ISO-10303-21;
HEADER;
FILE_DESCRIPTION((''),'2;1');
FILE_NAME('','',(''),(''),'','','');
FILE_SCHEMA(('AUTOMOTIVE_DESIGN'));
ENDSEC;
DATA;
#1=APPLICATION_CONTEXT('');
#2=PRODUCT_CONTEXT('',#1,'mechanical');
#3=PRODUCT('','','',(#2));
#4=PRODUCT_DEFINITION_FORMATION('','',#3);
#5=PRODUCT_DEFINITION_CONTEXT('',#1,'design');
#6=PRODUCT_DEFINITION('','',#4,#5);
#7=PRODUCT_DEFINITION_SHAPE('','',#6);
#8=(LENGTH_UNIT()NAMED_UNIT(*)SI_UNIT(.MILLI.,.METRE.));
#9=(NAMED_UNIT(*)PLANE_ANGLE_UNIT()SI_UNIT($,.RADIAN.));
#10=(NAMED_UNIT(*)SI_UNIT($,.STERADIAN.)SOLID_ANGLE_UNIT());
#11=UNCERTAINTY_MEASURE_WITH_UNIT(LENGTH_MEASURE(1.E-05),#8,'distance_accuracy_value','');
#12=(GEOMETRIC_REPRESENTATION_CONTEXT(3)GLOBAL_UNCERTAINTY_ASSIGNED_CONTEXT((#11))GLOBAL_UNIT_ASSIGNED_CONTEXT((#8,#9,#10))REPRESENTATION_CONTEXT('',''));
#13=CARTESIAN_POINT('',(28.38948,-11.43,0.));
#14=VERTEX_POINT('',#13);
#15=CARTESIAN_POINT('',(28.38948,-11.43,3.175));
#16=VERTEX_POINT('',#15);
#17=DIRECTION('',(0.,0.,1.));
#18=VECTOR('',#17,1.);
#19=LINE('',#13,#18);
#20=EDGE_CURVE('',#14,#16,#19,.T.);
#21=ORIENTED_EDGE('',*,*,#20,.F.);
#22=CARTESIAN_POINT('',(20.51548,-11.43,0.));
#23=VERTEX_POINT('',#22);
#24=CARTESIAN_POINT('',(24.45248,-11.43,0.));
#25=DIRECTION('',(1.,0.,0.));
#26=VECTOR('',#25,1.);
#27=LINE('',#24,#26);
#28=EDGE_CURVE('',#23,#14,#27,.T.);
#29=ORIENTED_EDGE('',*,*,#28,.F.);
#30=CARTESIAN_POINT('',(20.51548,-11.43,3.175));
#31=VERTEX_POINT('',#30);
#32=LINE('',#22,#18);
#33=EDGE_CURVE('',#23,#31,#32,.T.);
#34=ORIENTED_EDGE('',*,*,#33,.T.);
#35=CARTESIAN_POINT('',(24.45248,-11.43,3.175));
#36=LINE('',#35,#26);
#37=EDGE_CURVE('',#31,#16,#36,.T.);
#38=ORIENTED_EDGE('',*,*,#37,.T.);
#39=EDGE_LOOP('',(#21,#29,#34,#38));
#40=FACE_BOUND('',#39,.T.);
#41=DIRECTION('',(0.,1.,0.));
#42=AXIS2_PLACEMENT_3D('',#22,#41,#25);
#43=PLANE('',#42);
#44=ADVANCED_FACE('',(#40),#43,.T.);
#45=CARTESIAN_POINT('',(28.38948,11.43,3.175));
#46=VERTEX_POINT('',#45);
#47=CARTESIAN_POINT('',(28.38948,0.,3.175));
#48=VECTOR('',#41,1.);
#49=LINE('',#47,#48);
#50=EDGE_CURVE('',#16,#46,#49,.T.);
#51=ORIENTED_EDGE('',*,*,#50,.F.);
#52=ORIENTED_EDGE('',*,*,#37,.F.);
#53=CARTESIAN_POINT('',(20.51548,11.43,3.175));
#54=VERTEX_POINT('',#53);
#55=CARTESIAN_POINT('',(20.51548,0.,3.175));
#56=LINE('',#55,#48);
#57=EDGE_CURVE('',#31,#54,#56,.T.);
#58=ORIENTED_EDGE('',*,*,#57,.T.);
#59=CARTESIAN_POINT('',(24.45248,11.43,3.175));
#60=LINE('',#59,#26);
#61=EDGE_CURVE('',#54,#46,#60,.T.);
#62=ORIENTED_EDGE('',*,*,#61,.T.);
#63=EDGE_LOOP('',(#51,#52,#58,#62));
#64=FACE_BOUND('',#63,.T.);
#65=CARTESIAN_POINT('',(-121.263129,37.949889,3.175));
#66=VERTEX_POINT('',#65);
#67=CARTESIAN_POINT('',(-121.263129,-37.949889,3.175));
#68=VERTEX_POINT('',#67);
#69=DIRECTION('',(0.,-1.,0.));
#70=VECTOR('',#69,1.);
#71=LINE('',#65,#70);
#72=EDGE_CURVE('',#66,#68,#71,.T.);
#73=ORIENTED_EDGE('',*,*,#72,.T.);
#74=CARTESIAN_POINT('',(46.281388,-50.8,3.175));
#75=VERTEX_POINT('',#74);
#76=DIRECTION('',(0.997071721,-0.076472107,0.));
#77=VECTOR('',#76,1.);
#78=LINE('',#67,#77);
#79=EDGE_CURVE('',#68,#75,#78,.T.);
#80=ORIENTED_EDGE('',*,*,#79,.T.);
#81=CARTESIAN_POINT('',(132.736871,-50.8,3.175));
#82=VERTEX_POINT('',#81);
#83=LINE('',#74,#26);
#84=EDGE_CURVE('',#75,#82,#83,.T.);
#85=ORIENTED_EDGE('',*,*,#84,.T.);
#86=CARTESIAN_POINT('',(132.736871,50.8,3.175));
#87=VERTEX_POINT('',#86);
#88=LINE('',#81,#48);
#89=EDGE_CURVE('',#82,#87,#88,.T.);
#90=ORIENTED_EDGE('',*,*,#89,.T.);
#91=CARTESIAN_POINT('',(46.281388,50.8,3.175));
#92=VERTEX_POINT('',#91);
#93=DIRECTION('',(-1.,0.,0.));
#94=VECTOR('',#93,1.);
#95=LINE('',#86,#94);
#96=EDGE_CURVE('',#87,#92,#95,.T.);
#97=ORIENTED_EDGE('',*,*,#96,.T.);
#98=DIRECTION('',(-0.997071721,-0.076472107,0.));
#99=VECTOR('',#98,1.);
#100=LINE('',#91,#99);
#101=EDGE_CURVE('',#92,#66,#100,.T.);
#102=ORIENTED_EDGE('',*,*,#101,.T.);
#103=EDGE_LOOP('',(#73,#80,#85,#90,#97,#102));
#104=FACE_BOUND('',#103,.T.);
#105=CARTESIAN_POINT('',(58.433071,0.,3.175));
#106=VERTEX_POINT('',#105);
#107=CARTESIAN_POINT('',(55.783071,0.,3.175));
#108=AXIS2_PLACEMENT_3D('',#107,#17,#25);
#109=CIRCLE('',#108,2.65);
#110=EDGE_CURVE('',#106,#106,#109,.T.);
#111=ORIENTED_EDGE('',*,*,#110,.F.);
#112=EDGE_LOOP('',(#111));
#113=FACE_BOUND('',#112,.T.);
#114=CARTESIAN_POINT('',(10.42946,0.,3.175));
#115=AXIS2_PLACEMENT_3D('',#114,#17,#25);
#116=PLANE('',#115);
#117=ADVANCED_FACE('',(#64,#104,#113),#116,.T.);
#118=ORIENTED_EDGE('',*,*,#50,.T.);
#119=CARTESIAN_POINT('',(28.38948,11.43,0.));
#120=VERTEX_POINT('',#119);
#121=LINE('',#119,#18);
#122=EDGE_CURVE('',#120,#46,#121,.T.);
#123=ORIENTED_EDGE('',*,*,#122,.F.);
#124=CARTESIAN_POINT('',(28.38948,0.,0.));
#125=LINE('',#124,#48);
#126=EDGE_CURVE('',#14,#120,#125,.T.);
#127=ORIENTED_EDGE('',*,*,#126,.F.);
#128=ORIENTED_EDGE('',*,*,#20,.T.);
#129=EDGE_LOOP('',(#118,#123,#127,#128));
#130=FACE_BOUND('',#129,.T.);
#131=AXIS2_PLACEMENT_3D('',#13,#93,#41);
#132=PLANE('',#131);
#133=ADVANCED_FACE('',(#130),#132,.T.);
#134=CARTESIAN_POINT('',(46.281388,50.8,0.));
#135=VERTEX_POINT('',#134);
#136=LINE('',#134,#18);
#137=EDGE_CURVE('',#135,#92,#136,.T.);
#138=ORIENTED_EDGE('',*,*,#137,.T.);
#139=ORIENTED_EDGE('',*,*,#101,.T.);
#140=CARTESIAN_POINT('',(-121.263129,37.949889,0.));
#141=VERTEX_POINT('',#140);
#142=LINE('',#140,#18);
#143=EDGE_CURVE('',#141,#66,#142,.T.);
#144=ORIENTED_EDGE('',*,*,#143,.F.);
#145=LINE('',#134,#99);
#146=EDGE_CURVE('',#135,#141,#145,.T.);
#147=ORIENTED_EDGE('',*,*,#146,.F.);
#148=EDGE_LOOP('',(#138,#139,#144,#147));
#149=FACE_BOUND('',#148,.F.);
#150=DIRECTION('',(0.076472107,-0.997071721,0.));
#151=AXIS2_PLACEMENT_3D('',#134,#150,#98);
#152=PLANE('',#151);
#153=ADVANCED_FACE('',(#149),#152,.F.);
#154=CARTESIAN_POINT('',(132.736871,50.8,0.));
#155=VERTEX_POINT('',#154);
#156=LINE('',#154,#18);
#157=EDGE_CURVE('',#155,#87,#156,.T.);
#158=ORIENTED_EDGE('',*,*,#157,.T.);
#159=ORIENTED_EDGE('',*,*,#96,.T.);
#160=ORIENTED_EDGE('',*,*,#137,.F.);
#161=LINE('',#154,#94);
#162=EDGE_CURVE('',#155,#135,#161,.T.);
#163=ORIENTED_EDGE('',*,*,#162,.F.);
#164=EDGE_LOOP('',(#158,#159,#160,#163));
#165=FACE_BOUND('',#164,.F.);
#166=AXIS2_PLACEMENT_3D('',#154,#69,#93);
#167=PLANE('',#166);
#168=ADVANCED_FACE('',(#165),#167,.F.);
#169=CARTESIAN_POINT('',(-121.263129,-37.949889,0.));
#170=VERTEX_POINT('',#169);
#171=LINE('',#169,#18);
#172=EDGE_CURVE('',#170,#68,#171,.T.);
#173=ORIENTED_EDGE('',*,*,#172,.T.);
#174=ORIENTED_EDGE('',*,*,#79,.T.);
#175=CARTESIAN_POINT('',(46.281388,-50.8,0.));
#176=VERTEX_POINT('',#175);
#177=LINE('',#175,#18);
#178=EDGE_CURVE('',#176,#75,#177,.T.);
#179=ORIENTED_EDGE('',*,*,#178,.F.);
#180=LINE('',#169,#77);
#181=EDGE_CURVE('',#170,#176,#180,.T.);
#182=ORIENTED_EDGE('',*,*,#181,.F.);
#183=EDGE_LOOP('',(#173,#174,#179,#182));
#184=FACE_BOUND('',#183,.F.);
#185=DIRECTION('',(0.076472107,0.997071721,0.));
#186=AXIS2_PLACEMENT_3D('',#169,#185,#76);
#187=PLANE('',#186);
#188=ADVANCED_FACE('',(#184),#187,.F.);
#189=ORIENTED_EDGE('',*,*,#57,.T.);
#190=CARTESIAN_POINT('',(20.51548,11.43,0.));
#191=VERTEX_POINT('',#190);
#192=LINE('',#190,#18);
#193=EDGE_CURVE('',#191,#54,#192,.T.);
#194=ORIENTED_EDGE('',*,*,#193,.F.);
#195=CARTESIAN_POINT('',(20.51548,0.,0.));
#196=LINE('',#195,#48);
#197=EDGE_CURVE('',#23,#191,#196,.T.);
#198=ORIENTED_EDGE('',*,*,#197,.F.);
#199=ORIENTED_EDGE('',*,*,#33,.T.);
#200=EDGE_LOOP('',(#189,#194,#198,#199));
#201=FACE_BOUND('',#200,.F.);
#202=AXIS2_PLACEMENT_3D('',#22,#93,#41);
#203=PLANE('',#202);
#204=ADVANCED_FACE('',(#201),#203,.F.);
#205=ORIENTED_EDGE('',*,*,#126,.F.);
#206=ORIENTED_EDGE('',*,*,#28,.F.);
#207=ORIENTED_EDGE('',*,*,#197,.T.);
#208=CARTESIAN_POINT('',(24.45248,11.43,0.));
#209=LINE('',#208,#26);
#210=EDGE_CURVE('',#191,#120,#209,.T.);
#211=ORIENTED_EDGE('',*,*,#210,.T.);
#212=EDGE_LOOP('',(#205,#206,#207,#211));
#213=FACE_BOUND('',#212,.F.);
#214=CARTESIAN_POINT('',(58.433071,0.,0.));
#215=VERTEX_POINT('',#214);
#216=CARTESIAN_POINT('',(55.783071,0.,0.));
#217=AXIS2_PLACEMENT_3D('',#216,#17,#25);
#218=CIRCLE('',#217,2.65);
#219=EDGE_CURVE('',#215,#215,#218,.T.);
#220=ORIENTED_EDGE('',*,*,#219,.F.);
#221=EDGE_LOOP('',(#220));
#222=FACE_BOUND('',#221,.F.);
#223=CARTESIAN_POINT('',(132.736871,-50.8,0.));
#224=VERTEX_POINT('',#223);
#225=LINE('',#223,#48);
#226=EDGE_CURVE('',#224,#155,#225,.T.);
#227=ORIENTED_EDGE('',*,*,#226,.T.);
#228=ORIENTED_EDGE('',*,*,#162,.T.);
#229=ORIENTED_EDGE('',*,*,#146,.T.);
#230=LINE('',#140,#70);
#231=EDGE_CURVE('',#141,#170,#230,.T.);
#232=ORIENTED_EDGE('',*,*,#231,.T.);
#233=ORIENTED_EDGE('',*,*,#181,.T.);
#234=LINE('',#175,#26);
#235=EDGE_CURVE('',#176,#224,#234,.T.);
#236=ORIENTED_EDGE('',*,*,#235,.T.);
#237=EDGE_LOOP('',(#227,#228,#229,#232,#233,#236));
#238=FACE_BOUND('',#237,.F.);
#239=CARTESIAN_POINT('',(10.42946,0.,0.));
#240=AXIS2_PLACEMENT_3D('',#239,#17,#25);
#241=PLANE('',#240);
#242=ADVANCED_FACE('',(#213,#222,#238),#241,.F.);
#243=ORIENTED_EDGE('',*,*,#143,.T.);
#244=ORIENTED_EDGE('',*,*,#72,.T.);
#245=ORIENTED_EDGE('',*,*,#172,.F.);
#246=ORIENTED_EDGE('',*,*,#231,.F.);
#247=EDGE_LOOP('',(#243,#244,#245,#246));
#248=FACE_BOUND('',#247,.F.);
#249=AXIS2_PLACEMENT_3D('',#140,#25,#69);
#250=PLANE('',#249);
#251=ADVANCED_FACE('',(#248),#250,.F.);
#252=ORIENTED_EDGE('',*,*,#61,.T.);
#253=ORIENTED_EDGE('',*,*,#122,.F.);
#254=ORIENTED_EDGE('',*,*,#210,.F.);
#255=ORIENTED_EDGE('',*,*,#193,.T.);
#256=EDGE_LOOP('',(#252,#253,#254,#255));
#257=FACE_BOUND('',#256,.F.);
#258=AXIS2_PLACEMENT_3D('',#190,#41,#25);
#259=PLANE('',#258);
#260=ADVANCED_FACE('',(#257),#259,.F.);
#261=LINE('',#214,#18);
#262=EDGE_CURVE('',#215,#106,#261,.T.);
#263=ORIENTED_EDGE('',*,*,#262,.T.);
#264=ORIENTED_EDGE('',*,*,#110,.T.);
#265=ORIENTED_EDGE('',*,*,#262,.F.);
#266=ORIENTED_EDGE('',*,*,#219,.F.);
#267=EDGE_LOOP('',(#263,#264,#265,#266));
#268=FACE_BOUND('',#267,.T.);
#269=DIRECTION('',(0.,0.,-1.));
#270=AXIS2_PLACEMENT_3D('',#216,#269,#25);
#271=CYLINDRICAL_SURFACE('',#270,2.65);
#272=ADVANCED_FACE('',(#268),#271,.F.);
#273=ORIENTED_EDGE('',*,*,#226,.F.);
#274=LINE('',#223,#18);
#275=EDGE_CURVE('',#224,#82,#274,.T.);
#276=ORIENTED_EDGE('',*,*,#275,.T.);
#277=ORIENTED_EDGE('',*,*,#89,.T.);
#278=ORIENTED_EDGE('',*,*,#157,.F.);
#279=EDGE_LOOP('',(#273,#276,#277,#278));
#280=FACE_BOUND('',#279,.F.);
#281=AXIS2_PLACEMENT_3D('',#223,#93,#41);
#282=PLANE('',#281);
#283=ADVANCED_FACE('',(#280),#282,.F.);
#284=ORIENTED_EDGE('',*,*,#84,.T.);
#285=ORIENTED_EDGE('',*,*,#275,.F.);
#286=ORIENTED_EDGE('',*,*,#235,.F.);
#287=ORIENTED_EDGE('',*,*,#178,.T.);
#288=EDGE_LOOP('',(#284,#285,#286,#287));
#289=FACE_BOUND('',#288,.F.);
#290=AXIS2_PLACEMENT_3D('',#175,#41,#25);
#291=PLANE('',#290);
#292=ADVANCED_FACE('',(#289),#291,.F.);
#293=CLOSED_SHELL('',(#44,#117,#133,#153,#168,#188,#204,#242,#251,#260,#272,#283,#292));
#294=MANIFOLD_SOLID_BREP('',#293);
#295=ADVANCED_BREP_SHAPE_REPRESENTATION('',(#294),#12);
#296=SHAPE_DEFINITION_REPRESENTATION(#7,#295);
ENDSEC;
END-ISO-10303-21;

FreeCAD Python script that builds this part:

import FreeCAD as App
import Part
import Sketcher
Q = App.Units.Quantity


def add_polygon(sketch, points):
    """Adds a closed chain of lines whose ends are joined by coincident constraints."""
    first, n = sketch.GeometryCount, len(points)
    for a, b in zip(points, points[1:] + points[:1]):
        sketch.addGeometry(Part.LineSegment(App.Vector(*a, 0), App.Vector(*b, 0)), False)
    for i in range(n):
        sketch.addConstraint(Sketcher.Constraint("Coincident", first + i, 2, first + (i + 1) % n, 1))

doc = App.newDocument("Part")
body = doc.addObject("PartDesign::Body", "Body")

# Sketch on XY plane
sketch1 = body.newObject("Sketcher::SketchObject", "Sketch")
sketch1.AttachmentSupport = (doc.getObject("XY_Plane"), [""])
sketch1.MapMode = "FlatFace"
add_polygon(sketch1, [(132.7, 50.8), (46.3, 50.8), (-121.3, 37.9), (-121.3, -37.9), (46.3, -50.8), (132.7, -50.8)])  # lines 0-5
add_polygon(sketch1, [(28.4, -11.4), (20.5, -11.4), (20.5, 11.4), (28.4, 11.4)])  # lines 6-9
sketch1.addGeometry(Part.Circle(App.Vector(55.8, 0, 0), App.Vector(0, 0, 1), 2.6), False)  # 10
sketch1.addConstraint([
    Sketcher.Constraint("Horizontal", 0),
    Sketcher.Constraint("Vertical", 2),
    Sketcher.Constraint("Horizontal", 4),
    Sketcher.Constraint("Vertical", 5),
    Sketcher.Constraint("Horizontal", 6),
    Sketcher.Constraint("Vertical", 7),
    Sketcher.Constraint("Horizontal", 8),
    Sketcher.Constraint("Vertical", 9),
    Sketcher.Constraint("Symmetric", 0, 2, 3, 2, -1),
    Sketcher.Constraint("PointOnObject", 10, 3, -1),
    Sketcher.Constraint("Equal", 1, 3),
    Sketcher.Constraint("DistanceY", 5, 1, 5, 2, Q("4 in")),
    Sketcher.Constraint("DistanceY", 7, 1, 7, 2, Q("0.9 in")),
    Sketcher.Constraint("DistanceX", 2, 2, 4, 2, Q("10 in")),
    Sketcher.Constraint("DistanceX", 6, 2, 6, 1, Q("0.31 in")),
    Sketcher.Constraint("Diameter", 10, Q("5.3 mm")),
    Sketcher.Constraint("DistanceY", 6, 2, -1, 1, Q("0.45 in")),
    Sketcher.Constraint("DistanceX", 1, 2, 10, 3, Q("177.0462 mm")),
    Sketcher.Constraint("DistanceX", 0, 2, 0, 1, Q("86.455483 mm")),
    Sketcher.Constraint("DistanceY", 2, 2, 2, 1, Q("75.899778 mm")),
    Sketcher.Constraint("DistanceX", -1, 1, 10, 3, Q("55.783071 mm")),
    Sketcher.Constraint("DistanceX", -1, 1, 6, 2, Q("20.51548 mm")),
])
pad1 = body.newObject("PartDesign::Pad", "Pad")
pad1.Profile = sketch1
pad1.Length = Q("0.125 in")

doc.recompute()
